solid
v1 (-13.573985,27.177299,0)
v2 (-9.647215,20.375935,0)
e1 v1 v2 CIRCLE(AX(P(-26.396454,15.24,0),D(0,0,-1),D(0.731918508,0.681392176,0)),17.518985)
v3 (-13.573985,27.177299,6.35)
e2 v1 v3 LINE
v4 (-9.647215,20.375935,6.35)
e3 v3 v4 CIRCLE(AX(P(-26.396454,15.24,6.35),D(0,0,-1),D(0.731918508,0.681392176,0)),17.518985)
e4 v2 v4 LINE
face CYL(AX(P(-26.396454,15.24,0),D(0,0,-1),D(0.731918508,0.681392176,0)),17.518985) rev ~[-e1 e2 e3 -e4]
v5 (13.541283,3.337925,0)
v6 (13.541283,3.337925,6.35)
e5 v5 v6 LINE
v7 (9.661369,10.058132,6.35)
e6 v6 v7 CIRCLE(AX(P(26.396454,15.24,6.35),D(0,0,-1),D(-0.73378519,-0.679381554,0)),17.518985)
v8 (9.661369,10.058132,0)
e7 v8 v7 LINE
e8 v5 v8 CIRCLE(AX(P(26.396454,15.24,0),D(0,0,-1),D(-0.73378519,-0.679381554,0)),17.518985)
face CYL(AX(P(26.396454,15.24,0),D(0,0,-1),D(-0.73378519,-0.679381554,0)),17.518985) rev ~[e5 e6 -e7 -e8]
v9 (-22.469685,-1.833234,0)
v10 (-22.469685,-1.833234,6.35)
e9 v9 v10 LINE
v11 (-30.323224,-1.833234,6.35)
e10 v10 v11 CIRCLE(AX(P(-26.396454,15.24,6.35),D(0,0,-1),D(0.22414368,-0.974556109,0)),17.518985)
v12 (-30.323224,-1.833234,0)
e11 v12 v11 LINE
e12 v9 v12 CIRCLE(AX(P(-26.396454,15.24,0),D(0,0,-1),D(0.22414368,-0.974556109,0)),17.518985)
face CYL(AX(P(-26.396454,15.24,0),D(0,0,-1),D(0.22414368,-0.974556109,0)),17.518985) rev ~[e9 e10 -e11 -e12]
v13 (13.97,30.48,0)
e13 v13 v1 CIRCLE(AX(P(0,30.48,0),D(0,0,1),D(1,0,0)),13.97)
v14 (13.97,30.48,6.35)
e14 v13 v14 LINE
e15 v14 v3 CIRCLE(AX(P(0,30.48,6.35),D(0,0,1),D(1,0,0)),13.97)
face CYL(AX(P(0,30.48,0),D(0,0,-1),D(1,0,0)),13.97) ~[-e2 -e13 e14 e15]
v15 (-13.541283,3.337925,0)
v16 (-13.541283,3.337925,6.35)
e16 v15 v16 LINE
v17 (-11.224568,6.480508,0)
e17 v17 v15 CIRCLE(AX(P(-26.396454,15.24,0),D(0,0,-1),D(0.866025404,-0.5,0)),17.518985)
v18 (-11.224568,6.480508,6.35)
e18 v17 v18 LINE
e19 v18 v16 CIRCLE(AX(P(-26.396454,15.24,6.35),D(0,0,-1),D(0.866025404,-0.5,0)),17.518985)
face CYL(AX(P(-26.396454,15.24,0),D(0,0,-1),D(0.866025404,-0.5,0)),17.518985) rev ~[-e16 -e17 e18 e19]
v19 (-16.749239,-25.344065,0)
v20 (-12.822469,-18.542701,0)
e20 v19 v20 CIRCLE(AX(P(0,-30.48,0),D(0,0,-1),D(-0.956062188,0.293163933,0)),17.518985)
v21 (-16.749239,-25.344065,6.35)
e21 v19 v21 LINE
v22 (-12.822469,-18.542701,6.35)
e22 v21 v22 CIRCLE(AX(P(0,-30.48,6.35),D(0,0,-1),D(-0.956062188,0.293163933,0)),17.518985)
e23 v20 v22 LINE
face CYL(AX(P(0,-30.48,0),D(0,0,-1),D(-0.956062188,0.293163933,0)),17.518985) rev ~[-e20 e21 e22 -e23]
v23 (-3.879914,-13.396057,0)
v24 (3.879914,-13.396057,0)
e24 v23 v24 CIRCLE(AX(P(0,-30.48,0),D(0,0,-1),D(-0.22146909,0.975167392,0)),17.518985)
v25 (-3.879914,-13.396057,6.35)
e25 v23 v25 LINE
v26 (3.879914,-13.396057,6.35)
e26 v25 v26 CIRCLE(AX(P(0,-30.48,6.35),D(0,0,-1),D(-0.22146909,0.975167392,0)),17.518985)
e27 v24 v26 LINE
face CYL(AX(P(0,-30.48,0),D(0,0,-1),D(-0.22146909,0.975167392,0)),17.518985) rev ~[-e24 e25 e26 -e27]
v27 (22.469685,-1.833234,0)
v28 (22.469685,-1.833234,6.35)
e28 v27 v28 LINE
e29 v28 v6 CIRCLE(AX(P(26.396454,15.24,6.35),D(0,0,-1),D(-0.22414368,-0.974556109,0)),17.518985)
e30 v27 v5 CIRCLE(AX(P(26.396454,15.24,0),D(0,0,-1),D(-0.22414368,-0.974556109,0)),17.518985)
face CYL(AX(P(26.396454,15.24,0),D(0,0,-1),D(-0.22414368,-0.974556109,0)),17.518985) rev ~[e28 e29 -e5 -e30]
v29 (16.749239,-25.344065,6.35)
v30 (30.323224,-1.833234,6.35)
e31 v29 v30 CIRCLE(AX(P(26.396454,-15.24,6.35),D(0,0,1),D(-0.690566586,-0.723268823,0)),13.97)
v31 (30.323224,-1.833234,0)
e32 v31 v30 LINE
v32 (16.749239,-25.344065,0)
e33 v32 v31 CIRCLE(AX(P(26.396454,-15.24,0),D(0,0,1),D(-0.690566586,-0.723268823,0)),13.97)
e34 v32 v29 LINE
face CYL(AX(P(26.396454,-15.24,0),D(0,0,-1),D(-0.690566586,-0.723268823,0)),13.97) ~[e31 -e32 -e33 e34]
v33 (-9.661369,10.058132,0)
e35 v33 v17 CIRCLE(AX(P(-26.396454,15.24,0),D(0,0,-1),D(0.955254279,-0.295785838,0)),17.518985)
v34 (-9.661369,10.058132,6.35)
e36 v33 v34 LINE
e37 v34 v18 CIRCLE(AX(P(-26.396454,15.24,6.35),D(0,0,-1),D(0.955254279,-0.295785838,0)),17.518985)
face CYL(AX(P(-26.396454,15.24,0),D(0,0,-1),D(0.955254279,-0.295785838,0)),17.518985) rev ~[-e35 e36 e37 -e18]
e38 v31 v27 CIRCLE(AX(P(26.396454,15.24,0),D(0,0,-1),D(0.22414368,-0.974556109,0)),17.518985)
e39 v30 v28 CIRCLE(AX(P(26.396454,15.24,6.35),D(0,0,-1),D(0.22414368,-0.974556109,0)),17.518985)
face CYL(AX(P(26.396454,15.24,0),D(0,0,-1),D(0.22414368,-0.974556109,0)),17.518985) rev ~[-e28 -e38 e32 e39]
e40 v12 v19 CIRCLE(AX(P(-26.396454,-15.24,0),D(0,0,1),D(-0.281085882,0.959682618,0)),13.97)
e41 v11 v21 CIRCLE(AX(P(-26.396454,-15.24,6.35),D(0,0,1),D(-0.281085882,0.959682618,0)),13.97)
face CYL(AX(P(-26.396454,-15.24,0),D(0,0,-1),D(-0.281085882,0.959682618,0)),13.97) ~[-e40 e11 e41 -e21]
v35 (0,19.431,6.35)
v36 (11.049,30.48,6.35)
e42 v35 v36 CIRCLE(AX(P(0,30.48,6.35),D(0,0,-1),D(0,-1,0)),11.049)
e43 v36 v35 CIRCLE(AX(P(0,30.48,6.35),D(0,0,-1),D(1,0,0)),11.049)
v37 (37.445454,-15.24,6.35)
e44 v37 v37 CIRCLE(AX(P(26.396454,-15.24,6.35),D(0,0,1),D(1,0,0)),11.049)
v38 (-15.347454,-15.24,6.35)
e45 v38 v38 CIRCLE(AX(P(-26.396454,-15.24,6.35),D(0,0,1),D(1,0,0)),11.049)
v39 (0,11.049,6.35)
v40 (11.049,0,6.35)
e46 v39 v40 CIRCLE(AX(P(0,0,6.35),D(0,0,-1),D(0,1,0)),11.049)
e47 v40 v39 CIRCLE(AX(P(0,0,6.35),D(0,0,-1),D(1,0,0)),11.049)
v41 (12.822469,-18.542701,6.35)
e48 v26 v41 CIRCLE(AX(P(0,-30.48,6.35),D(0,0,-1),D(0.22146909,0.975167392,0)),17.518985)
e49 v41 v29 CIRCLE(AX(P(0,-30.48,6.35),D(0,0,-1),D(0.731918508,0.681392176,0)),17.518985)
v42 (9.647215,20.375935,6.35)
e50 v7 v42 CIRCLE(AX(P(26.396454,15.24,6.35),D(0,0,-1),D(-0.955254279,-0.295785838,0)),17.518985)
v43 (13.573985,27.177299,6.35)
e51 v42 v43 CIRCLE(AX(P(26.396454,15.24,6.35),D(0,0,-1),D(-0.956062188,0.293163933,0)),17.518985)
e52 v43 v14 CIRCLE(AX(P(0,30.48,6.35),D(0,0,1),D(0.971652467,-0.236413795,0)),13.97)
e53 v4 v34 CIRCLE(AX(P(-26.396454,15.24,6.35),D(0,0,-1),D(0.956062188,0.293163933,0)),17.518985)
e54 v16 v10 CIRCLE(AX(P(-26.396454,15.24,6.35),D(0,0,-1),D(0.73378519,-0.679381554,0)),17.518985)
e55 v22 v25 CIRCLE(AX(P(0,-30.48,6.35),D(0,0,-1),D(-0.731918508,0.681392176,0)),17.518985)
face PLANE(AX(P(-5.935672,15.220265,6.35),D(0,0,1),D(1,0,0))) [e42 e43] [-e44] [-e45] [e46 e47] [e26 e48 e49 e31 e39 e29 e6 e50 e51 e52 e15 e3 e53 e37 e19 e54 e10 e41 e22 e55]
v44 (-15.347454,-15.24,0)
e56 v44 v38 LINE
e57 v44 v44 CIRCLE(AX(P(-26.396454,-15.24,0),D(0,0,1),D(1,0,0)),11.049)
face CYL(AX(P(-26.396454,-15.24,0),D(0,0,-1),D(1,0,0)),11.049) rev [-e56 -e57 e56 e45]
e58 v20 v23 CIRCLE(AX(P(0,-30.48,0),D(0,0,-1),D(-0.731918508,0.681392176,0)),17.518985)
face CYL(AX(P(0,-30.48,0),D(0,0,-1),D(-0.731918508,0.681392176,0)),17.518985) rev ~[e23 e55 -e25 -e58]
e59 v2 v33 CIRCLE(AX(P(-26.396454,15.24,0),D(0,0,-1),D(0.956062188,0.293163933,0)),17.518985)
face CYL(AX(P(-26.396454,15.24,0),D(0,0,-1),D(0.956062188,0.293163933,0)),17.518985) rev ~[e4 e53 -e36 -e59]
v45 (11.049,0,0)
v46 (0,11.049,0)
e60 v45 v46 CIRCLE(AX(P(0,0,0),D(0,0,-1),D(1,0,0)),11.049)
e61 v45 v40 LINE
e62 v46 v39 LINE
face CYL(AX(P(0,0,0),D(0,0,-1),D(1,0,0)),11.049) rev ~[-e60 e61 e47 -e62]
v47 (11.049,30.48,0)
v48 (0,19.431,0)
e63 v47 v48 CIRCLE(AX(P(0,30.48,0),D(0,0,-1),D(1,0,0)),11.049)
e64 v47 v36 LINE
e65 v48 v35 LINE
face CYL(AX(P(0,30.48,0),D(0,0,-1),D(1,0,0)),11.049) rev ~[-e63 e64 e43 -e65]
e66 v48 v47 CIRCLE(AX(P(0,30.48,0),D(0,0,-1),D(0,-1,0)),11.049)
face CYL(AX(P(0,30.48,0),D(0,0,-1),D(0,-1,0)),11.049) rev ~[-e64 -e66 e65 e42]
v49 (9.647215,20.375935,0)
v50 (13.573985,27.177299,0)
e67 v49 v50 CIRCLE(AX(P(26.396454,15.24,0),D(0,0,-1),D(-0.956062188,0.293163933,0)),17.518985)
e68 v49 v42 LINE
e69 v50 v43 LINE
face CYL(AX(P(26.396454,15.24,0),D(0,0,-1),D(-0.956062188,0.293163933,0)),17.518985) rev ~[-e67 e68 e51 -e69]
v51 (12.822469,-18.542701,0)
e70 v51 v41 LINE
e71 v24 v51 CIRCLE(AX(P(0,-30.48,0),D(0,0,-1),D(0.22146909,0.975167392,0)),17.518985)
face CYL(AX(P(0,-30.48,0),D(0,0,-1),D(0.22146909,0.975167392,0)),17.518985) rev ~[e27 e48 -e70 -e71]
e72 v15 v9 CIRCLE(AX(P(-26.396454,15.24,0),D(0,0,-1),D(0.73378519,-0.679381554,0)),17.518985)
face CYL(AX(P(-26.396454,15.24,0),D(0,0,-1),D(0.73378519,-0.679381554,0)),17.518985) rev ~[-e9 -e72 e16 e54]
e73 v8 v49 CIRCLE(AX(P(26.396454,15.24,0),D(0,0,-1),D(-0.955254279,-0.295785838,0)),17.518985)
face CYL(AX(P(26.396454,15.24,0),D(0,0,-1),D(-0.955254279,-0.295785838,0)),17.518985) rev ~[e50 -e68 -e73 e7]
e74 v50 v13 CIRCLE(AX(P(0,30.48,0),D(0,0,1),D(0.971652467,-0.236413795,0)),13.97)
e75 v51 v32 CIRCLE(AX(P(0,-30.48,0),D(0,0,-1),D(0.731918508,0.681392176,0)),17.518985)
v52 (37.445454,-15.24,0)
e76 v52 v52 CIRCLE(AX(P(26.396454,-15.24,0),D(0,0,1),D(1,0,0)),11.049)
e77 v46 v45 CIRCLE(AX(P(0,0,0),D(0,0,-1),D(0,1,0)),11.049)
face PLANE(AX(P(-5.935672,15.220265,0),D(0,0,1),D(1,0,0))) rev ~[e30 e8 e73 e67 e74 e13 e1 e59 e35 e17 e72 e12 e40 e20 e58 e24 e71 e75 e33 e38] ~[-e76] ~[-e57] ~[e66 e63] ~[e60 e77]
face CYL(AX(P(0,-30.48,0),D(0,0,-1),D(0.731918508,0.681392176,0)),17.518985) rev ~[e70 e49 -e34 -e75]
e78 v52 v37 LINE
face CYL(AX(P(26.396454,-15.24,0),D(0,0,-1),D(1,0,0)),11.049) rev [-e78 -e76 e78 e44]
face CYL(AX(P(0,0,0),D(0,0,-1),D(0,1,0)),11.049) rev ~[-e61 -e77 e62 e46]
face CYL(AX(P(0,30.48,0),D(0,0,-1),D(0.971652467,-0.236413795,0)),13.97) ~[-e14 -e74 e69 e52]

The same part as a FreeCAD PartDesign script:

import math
import FreeCAD as App
import Part
import Sketcher

V = App.Vector
Q = App.Units.Quantity

doc = App.newDocument("Part")
body = doc.addObject("PartDesign::Body", "Body")

# Sketch on XY plane
sketch1 = body.newObject("Sketcher::SketchObject", "Sketch")
sketch1.AttachmentSupport = (doc.getObject("XY_Plane"), [""])
sketch1.MapMode = "FlatFace"
sketch1.addGeometry(Part.ArcOfCircle(Part.Circle(V(-26.4, 15.2, 0), V(0, 0, 1), 17.5), math.radians(-42.8), math.radians(-30)), False)
sketch1.addGeometry(Part.ArcOfCircle(Part.Circle(V(-26.4, 15.2, 0), V(0, 0, 1), 17.5), math.radians(-77), math.radians(-43)), False)
sketch1.addGeometry(Part.ArcOfCircle(Part.Circle(V(-26.4, 15.2, 0), V(0, 0, 1), 17.5), math.radians(-103), math.radians(-77)), False)
sketch1.addGeometry(Part.ArcOfCircle(Part.Circle(V(-26.4, -15.2, 0), V(0, 0, 1), 14), math.radians(106), math.radians(314)), False)
sketch1.addGeometry(Part.ArcOfCircle(Part.Circle(V(0, -30.5, 0), V(0, 0, 1), 17.5), math.radians(137), math.radians(163)), False)
sketch1.addGeometry(Part.ArcOfCircle(Part.Circle(V(0, -30.5, 0), V(0, 0, 1), 17.5), math.radians(103), math.radians(137)), False)
sketch1.addGeometry(Part.ArcOfCircle(Part.Circle(V(0, -30.5, 0), V(0, 0, 1), 17.5), math.radians(77), math.radians(103)), False)
sketch1.addGeometry(Part.ArcOfCircle(Part.Circle(V(0, -30.5, 0), V(0, 0, 1), 17.5), math.radians(43), math.radians(77)), False)
sketch1.addGeometry(Part.ArcOfCircle(Part.Circle(V(0, -30.5, 0), V(0, 0, 1), 17.5), math.radians(17), math.radians(43)), False)
sketch1.addGeometry(Part.ArcOfCircle(Part.Circle(V(26.4, -15.2, 0), V(0, 0, 1), 14), math.radians(-134), math.radians(74)), False)
sketch1.addGeometry(Part.ArcOfCircle(Part.Circle(V(26.4, 15.2, 0), V(0, 0, 1), 17.5), math.radians(-103), math.radians(-77)), False)
sketch1.addGeometry(Part.ArcOfCircle(Part.Circle(V(26.4, 15.2, 0), V(0, 0, 1), 17.5), math.radians(-137), math.radians(-103)), False)
sketch1.addGeometry(Part.ArcOfCircle(Part.Circle(V(26.4, 15.2, 0), V(0, 0, 1), 17.5), math.radians(-163), math.radians(-137)), False)
sketch1.addGeometry(Part.ArcOfCircle(Part.Circle(V(26.4, 15.2, 0), V(0, 0, 1), 17.5), math.radians(163), math.radians(197)), False)
sketch1.addGeometry(Part.ArcOfCircle(Part.Circle(V(26.4, 15.2, 0), V(0, 0, 1), 17.5), math.radians(137), math.radians(163)), False)
sketch1.addGeometry(Part.ArcOfCircle(Part.Circle(V(0, 30.5, 0), V(0, 0, 1), 14), math.radians(-13.67), math.radians(0)), False)
sketch1.addGeometry(Part.ArcOfCircle(Part.Circle(V(0, 30.5, 0), V(0, 0, 1), 14), math.radians(0), math.radians(194)), False)
sketch1.addGeometry(Part.ArcOfCircle(Part.Circle(V(-26.4, 15.2, 0), V(0, 0, 1), 17.5), math.radians(17), math.radians(43)), False)
sketch1.addGeometry(Part.ArcOfCircle(Part.Circle(V(-26.4, 15.2, 0), V(0, 0, 1), 17.5), math.radians(-17), math.radians(17)), False)
sketch1.addGeometry(Part.ArcOfCircle(Part.Circle(V(-26.4, 15.2, 0), V(0, 0, 1), 17.5), math.radians(-30), math.radians(-17.2)), False)
sketch1.addGeometry(Part.ArcOfCircle(Part.Circle(V(0, 0, 0), V(0, 0, 1), 11), math.radians(0), math.radians(90)), False)
sketch1.addGeometry(Part.ArcOfCircle(Part.Circle(V(0, 0, 0), V(0, 0, 1), 11), math.radians(90), math.radians(360)), False)
sketch1.addGeometry(Part.ArcOfCircle(Part.Circle(V(0, 30.5, 0), V(0, 0, 1), 11), math.radians(0), math.radians(270)), False)
sketch1.addGeometry(Part.ArcOfCircle(Part.Circle(V(0, 30.5, 0), V(0, 0, 1), 11), math.radians(-90), math.radians(0)), False)
sketch1.addGeometry(Part.Circle(V(-26.4, -15.2, 0), V(0, 0, 1), 11), False)
sketch1.addGeometry(Part.Circle(V(26.4, -15.2, 0), V(0, 0, 1), 11), False)
sketch1.addConstraint(Sketcher.Constraint("Tangent", 0, 1, 1, 2))
sketch1.addConstraint(Sketcher.Constraint("Tangent", 1, 1, 2, 2))
sketch1.addConstraint(Sketcher.Constraint("Coincident", 2, 1, 3, 1))
sketch1.addConstraint(Sketcher.Constraint("Coincident", 3, 2, 4, 2))
sketch1.addConstraint(Sketcher.Constraint("Tangent", 4, 1, 5, 2))
sketch1.addConstraint(Sketcher.Constraint("Tangent", 5, 1, 6, 2))
sketch1.addConstraint(Sketcher.Constraint("Tangent", 6, 1, 7, 2))
sketch1.addConstraint(Sketcher.Constraint("Tangent", 7, 1, 8, 2))
sketch1.addConstraint(Sketcher.Constraint("Coincident", 8, 1, 9, 1))
sketch1.addConstraint(Sketcher.Constraint("Coincident", 9, 2, 10, 2))
sketch1.addConstraint(Sketcher.Constraint("Tangent", 10, 1, 11, 2))
sketch1.addConstraint(Sketcher.Constraint("Tangent", 11, 1, 12, 2))
sketch1.addConstraint(Sketcher.Constraint("Tangent", 12, 1, 13, 2))
sketch1.addConstraint(Sketcher.Constraint("Tangent", 13, 1, 14, 2))
sketch1.addConstraint(Sketcher.Constraint("Coincident", 14, 1, 15, 1))
sketch1.addConstraint(Sketcher.Constraint("Tangent", 15, 2, 16, 1))
sketch1.addConstraint(Sketcher.Constraint("Coincident", 16, 2, 17, 2))
sketch1.addConstraint(Sketcher.Constraint("Tangent", 17, 1, 18, 2))
sketch1.addConstraint(Sketcher.Constraint("Tangent", 18, 1, 19, 2))
sketch1.addConstraint(Sketcher.Constraint("Tangent", 19, 1, 0, 2))
sketch1.addConstraint(Sketcher.Constraint("Tangent", 20, 1, 21, 2))
sketch1.addConstraint(Sketcher.Constraint("Coincident", 21, 1, 20, 2))
sketch1.addConstraint(Sketcher.Constraint("Tangent", 22, 1, 23, 2))
sketch1.addConstraint(Sketcher.Constraint("Coincident", 23, 1, 22, 2))
sketch1.addConstraint(Sketcher.Constraint("Coincident", 20, 3, -1, 1))
sketch1.addConstraint(Sketcher.Constraint("Coincident", 2, 3, 0, 3))
sketch1.addConstraint(Sketcher.Constraint("Coincident", 6, 3, 4, 3))
sketch1.addConstraint(Sketcher.Constraint("Coincident", 8, 3, 4, 3))
sketch1.addConstraint(Sketcher.Constraint("Coincident", 12, 3, 10, 3))
sketch1.addConstraint(Sketcher.Constraint("Coincident", 14, 3, 10, 3))
sketch1.addConstraint(Sketcher.Constraint("Coincident", 17, 3, 0, 3))
sketch1.addConstraint(Sketcher.Constraint("Coincident", 22, 3, 15, 3))
sketch1.addConstraint(Sketcher.Constraint("Coincident", 24, 3, 3, 3))
sketch1.addConstraint(Sketcher.Constraint("Coincident", 25, 3, 9, 3))
sketch1.addConstraint(Sketcher.Constraint("Equal", 2, 4))
sketch1.addConstraint(Sketcher.Constraint("Equal", 3, 9))
sketch1.addConstraint(Sketcher.Constraint("Equal", 8, 10))
sketch1.addConstraint(Sketcher.Constraint("Equal", 9, 15))
sketch1.addConstraint(Sketcher.Constraint("Equal", 15, 16))
sketch1.addConstraint(Sketcher.Constraint("Equal", 14, 17))
sketch1.addConstraint(Sketcher.Constraint("Equal", 21, 22))
sketch1.addConstraint(Sketcher.Constraint("Equal", 23, 24))
sketch1.addConstraint(Sketcher.Constraint("Equal", 24, 25))
sketch1.addConstraint(Sketcher.Constraint("Symmetric", 0, 3, 9, 3, -1, 1))
sketch1.addConstraint(Sketcher.Constraint("Symmetric", 3, 3, 10, 3, -1, 1))
sketch1.addConstraint(Sketcher.Constraint("Symmetric", 4, 3, 15, 3, -1, 1))
sketch1.addConstraint(Sketcher.Constraint("Symmetric", 3, 3, 9, 3, -2))
sketch1.addConstraint(Sketcher.Constraint("Symmetric", 5, 1, 6, 1, -2))
sketch1.addConstraint(Sketcher.Constraint("PointOnObject", 20, 1, -1))
sketch1.addConstraint(Sketcher.Constraint("PointOnObject", 21, 1, -2))
sketch1.addConstraint(Sketcher.Constraint("PointOnObject", 23, 1, -2))
sketch1.addConstraint(Sketcher.Constraint("Horizontal", 1, 1, 2, 1))
sketch1.addConstraint(Sketcher.Constraint("Horizontal", 4, 1, 7, 1))
sketch1.addConstraint(Sketcher.Constraint("Horizontal", 9, 2, 10, 1))
sketch1.addConstraint(Sketcher.Constraint("Horizontal", 0, 1, 11, 1))
sketch1.addConstraint(Sketcher.Constraint("Horizontal", 23, 3, 15, 2))
sketch1.addConstraint(Sketcher.Constraint("Horizontal", 13, 1, 17, 1))
sketch1.addConstraint(Sketcher.Constraint("Horizontal", 12, 1, 18, 1))
sketch1.addConstraint(Sketcher.Constraint("Horizontal", 15, 2, 22, 1))
sketch1.addConstraint(Sketcher.Constraint("Diameter", 24, Q("0.87 in")))
sketch1.addConstraint(Sketcher.Constraint("Radius", 3, Q("0.55 in")))
sketch1.addConstraint(Sketcher.Constraint("DistanceY", -1, 1, 0, 3, Q("0.6 in")))
sketch1.addConstraint(Sketcher.Constraint("DistanceY", 4, 3, -1, 1, Q("1.2 in")))
sketch1.addConstraint(Sketcher.Constraint("Radius", 0, Q("17.518985 mm")))
sketch1.addConstraint(Sketcher.Constraint("DistanceY", 4, 1, -1, 1, Q("18.542701 mm")))
sketch1.addConstraint(Sketcher.Constraint("DistanceY", -1, 1, 14, 1, Q("27.177299 mm")))
sketch1.addConstraint(Sketcher.Constraint("DistanceX", 1, 1, 0, 1, Q("8.928402 mm")))
sketch1.addConstraint(Sketcher.Constraint("DistanceX", 19, 1, 18, 1, Q("1.563199 mm")))
sketch1.addConstraint(Sketcher.Constraint("DistanceX", -1, 1, 12, 1, Q("9.661369 mm")))
sketch1.addConstraint(Sketcher.Constraint("DistanceX", 13, 1, 14, 1, Q("3.92677 mm")))
sketch1.addConstraint(Sketcher.Constraint("DistanceX", 5, 1, -1, 1, Q("3.879914 mm")))
pad1 = body.newObject("PartDesign::Pad", "Pad")
pad1.Profile = sketch1
pad1.Length = Q("0.25 in")

doc.recompute()
